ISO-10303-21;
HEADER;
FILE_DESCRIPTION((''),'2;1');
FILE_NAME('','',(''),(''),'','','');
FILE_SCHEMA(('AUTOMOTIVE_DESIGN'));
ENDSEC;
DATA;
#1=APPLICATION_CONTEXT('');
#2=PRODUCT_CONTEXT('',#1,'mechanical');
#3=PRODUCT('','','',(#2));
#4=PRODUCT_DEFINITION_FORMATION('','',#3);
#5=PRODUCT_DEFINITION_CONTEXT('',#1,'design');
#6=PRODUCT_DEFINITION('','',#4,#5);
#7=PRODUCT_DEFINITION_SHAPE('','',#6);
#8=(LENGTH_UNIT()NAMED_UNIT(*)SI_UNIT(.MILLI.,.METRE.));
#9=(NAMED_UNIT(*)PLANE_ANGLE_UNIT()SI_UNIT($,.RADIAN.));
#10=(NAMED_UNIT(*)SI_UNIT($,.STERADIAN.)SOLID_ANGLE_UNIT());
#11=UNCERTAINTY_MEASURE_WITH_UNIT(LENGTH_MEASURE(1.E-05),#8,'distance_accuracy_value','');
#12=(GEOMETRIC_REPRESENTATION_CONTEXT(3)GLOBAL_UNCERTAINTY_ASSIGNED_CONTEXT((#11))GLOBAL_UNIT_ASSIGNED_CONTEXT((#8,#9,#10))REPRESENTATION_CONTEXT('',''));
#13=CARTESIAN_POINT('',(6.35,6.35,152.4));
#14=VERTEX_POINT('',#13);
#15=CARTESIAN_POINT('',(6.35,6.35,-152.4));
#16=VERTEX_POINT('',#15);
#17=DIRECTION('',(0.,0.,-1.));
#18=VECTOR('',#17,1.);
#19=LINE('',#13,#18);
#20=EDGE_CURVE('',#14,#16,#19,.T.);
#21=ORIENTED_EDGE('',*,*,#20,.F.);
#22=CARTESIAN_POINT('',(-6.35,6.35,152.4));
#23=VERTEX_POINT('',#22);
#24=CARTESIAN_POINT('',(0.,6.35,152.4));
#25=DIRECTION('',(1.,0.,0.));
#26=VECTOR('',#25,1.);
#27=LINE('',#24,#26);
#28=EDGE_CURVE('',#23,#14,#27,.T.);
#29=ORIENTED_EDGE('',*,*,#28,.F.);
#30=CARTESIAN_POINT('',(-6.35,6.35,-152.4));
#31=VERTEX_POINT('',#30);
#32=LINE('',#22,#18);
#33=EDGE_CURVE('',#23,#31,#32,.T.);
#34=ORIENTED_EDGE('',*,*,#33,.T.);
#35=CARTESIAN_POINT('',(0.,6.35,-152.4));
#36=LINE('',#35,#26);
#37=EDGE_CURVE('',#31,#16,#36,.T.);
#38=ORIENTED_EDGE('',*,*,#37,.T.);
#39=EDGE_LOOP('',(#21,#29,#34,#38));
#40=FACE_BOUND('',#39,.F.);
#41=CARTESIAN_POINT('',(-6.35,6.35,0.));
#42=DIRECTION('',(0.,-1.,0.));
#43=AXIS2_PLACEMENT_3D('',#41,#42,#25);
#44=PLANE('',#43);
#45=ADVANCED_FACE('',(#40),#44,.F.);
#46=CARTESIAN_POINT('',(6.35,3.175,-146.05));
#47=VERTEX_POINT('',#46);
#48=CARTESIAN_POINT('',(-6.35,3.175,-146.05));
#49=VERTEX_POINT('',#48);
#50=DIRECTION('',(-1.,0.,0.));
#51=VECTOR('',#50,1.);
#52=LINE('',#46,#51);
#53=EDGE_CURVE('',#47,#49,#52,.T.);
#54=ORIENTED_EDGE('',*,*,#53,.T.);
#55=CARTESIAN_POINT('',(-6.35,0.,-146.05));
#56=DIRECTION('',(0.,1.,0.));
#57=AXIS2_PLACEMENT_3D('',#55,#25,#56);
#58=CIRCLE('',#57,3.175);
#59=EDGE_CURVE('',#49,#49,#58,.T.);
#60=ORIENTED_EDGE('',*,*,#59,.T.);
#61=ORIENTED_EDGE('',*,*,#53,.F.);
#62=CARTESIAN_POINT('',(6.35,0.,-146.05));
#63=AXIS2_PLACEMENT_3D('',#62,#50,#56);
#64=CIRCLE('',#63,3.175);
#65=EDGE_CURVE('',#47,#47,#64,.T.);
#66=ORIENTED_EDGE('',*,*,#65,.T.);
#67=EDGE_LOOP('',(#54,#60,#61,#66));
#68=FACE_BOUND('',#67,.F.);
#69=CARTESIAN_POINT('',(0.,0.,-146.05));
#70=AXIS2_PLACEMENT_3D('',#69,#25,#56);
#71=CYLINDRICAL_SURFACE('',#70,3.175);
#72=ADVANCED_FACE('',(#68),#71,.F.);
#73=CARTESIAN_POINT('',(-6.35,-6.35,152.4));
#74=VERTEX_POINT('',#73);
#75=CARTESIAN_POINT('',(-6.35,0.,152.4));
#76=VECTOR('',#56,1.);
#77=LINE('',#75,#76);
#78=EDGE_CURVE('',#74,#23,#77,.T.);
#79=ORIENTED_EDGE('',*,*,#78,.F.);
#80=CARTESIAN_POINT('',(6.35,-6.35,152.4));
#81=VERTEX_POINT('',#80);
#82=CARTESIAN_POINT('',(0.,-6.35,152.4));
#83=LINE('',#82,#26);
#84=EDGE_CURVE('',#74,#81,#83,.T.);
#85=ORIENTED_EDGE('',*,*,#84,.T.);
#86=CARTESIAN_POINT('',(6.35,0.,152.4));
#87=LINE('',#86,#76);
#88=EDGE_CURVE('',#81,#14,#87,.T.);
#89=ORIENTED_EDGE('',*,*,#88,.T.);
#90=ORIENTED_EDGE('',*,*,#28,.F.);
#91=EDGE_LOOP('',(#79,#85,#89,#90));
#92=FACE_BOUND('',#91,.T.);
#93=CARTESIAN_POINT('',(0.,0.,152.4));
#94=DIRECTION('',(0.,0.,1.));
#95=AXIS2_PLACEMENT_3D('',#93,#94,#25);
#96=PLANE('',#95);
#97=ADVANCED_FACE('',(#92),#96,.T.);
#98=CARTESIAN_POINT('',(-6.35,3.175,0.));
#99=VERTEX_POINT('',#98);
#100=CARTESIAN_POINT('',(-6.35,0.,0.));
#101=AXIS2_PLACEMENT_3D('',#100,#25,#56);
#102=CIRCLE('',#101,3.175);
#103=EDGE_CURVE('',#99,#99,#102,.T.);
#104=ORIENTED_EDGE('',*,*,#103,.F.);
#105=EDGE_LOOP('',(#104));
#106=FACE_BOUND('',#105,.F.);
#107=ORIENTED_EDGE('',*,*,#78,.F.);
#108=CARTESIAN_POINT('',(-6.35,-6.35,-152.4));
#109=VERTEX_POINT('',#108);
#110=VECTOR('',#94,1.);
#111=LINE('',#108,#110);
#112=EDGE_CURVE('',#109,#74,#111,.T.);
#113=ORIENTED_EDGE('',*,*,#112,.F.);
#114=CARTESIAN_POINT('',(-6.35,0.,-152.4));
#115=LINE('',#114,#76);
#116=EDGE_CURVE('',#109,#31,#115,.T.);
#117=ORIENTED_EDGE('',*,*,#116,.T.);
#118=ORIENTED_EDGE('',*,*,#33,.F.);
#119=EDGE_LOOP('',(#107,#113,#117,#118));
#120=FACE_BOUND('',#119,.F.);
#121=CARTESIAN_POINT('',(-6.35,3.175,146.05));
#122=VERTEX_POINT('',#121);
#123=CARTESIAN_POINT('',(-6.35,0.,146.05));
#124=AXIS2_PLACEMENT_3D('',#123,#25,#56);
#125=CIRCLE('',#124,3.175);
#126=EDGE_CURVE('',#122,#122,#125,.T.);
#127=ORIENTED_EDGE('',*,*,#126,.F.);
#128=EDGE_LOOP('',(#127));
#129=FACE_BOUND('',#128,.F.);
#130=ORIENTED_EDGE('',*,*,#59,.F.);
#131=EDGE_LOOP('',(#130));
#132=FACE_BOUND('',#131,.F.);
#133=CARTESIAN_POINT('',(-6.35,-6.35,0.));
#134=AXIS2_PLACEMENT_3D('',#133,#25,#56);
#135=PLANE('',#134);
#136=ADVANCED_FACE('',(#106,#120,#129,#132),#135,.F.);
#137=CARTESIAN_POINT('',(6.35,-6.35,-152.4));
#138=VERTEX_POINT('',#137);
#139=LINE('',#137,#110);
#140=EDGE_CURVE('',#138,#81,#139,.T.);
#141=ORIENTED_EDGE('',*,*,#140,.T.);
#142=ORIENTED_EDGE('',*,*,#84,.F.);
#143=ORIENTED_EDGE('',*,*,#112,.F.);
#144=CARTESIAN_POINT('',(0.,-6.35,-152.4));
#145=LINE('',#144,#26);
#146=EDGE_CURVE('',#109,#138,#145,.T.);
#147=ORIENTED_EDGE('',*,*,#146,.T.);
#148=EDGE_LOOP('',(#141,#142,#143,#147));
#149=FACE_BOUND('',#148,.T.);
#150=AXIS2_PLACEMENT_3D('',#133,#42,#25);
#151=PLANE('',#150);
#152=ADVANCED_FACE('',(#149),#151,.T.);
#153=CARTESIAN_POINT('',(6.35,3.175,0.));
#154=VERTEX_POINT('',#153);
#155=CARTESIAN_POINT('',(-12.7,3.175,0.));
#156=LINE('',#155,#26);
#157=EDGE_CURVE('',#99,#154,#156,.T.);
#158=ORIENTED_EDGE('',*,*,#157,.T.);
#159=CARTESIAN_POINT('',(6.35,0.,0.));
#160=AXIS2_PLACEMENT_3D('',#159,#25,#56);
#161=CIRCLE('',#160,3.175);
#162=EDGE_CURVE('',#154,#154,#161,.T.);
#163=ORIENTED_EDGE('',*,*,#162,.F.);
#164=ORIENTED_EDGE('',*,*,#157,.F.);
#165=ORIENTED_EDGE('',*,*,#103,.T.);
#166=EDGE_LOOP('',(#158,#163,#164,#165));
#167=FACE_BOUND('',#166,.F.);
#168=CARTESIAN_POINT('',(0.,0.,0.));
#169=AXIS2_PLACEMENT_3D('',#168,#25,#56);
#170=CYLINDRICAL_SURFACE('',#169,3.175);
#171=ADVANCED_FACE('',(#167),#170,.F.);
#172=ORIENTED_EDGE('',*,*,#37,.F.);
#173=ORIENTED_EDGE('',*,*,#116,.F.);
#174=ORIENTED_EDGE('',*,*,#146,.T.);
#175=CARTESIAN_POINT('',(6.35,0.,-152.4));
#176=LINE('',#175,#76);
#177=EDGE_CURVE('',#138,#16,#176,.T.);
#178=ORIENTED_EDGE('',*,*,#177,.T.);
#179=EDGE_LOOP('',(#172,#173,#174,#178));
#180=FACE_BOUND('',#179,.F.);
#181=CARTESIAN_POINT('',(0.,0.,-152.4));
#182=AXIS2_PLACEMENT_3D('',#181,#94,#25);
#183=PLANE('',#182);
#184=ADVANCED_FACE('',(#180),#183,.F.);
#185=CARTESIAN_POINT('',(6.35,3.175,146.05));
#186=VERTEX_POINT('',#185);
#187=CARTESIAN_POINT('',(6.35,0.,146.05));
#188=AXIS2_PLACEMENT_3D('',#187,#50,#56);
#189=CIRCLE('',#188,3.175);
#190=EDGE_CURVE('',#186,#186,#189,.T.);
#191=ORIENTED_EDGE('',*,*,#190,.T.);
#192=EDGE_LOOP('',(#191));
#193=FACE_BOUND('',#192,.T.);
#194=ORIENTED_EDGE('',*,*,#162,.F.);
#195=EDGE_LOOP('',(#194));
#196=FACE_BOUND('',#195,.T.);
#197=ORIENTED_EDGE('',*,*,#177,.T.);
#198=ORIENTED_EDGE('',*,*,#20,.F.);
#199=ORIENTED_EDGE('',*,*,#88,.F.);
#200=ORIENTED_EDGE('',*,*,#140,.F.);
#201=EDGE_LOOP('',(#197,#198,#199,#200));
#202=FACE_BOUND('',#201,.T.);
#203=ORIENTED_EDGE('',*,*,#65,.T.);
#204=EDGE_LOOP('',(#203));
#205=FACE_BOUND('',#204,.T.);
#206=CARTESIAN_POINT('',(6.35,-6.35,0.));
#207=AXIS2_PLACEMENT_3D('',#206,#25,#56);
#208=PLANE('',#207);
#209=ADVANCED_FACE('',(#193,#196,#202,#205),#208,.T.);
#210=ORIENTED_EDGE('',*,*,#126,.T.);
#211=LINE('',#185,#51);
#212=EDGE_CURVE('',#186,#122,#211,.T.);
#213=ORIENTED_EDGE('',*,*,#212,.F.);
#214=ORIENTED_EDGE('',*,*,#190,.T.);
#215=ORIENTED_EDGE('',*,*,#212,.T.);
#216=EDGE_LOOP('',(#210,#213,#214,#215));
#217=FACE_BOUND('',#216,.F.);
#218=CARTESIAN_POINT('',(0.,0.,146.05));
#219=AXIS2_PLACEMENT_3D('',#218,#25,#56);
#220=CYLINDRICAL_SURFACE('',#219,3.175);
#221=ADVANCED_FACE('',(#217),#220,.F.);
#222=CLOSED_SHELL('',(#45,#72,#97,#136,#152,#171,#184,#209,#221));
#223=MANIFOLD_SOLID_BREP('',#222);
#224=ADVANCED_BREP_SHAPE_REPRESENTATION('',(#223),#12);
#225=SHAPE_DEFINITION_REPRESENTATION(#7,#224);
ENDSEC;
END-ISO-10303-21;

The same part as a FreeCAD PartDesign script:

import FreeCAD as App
import Part
import Sketcher

V = App.Vector
Q = App.Units.Quantity


def add_polygon(sketch, points):
    """Adds a closed chain of lines whose ends are joined by coincident constraints."""
    first, n = sketch.GeometryCount, len(points)
    for a, b in zip(points, points[1:] + points[:1]):
        sketch.addGeometry(Part.LineSegment(App.Vector(*a, 0), App.Vector(*b, 0)), False)
    for i in range(n):
        sketch.addConstraint(Sketcher.Constraint("Coincident", first + i, 2, first + (i + 1) % n, 1))

doc = App.newDocument("Part")
body = doc.addObject("PartDesign::Body", "Body")

# Sketch on XY plane
sketch1 = body.newObject("Sketcher::SketchObject", "Sketch")
sketch1.AttachmentSupport = (doc.getObject("XY_Plane"), [""])
sketch1.MapMode = "FlatFace"
add_polygon(sketch1, [(-6, 6), (-6, -6), (6, -6), (6, 6)])  # lines 0-3
sketch1.addConstraint(Sketcher.Constraint("Vertical", 0))
sketch1.addConstraint(Sketcher.Constraint("Horizontal", 1))
sketch1.addConstraint(Sketcher.Constraint("Vertical", 2))
sketch1.addConstraint(Sketcher.Constraint("Horizontal", 3))
sketch1.addConstraint(Sketcher.Constraint("Symmetric", 0, 2, 2, 2, -1, 1))
sketch1.addConstraint(Sketcher.Constraint("Equal", 3, 0))
sketch1.addConstraint(Sketcher.Constraint("DistanceX", 1, 1, 1, 2, Q("0.5 in")))
pad1 = body.newObject("PartDesign::Pad", "Pad")
pad1.Profile = sketch1
pad1.Length = Q("12 in")
pad1.Midplane = True

# Sketch on YZ plane
sketch2 = body.newObject("Sketcher::SketchObject", "Sketch001")
sketch2.AttachmentSupport = (doc.getObject("YZ_Plane"), [""])
sketch2.MapMode = "FlatFace"
sketch2.addGeometry(Part.Circle(V(0, 146.1, 0), V(0, 0, 1), 3.2), False)
sketch2.addGeometry(Part.Circle(V(0, -146.1, 0), V(0, 0, 1), 3.2), False)
sketch2.addGeometry(Part.Circle(V(0, 0, 0), V(0, 0, 1), 3.2), False)
sketch2.addConstraint(Sketcher.Constraint("Coincident", 2, 3, -1, 1))
sketch2.addConstraint(Sketcher.Constraint("Equal", 0, 1))
sketch2.addConstraint(Sketcher.Constraint("Equal", 1, 2))
sketch2.addConstraint(Sketcher.Constraint("Symmetric", 0, 3, 1, 3, -1, 1))
sketch2.addConstraint(Sketcher.Constraint("PointOnObject", 0, 3, -2))
sketch2.addConstraint(Sketcher.Constraint("Diameter", 0, Q("0.25 in")))
sketch2.addConstraint(Sketcher.Constraint("DistanceY", 1, 3, 0, 3, Q("11.5 in")))
pocket1 = body.newObject("PartDesign::Pocket", "Pocket")
pocket1.Profile = sketch2
pocket1.Length = Q("1 in")
pocket1.Midplane = True

doc.recompute()
